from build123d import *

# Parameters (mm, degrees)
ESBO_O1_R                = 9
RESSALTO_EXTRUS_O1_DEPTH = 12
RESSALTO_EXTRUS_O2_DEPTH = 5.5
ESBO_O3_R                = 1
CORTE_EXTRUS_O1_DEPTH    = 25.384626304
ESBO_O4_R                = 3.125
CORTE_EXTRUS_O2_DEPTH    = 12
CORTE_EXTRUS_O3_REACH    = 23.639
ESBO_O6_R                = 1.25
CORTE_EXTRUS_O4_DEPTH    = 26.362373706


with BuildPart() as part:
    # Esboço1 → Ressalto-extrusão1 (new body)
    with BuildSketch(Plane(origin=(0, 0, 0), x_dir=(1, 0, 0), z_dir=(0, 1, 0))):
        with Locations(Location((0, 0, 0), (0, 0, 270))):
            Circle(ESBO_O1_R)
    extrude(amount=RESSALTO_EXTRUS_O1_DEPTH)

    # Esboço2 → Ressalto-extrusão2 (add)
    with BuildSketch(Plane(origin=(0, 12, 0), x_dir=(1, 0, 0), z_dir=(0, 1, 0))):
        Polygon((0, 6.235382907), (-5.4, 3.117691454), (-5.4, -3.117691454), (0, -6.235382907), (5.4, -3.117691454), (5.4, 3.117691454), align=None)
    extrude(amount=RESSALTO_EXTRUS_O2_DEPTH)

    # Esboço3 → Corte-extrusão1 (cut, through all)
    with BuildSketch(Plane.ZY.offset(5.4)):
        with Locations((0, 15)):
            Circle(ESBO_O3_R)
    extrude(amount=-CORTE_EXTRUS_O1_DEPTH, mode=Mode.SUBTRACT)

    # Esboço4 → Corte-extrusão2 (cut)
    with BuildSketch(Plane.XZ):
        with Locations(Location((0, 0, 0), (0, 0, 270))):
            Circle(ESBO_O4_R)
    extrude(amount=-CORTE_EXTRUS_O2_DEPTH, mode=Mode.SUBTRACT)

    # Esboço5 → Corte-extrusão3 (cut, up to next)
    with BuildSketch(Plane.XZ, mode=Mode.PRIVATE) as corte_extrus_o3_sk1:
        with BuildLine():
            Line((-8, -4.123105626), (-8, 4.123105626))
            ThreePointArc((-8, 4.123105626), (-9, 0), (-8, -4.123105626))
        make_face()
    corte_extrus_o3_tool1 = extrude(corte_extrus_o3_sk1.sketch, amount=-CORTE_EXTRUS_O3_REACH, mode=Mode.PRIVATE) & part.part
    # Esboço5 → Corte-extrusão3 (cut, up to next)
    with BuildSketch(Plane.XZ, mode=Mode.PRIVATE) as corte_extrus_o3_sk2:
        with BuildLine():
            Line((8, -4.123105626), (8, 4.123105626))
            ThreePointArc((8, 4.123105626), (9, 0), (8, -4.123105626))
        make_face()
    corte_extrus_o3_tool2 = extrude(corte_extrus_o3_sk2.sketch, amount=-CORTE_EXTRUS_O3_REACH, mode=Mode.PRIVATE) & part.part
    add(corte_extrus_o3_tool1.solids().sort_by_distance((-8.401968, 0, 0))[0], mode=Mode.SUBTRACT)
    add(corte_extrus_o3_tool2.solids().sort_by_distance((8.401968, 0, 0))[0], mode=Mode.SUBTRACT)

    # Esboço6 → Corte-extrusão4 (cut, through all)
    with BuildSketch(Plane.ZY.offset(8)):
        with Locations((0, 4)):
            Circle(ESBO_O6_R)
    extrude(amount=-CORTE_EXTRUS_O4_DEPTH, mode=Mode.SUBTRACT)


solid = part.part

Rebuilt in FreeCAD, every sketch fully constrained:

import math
import FreeCAD as App
import Part
import Sketcher

V = App.Vector
Q = App.Units.Quantity


def add_polygon(sketch, points):
    """Adds a closed chain of lines whose ends are joined by coincident constraints."""
    first, n = sketch.GeometryCount, len(points)
    for a, b in zip(points, points[1:] + points[:1]):
        sketch.addGeometry(Part.LineSegment(App.Vector(*a, 0), App.Vector(*b, 0)), False)
    for i in range(n):
        sketch.addConstraint(Sketcher.Constraint("Coincident", first + i, 2, first + (i + 1) % n, 1))

doc = App.newDocument("Part")
body = doc.addObject("PartDesign::Body", "Body")

# Sketch on XZ plane
sketch1 = body.newObject("Sketcher::SketchObject", "Sketch")
sketch1.AttachmentSupport = (doc.getObject("XZ_Plane"), [""])
sketch1.MapMode = "FlatFace"
sketch1.addGeometry(Part.Circle(V(0, 0, 0), V(0, 0, 1), 9), False)
sketch1.addConstraint([
    Sketcher.Constraint("Coincident", 0, 3, -1, 1),
    Sketcher.Constraint("Diameter", 0, Q("18 mm")),
])
pad1 = body.newObject("PartDesign::Pad", "Pad")
pad1.Profile = sketch1
pad1.Length = 12
pad1.Reversed = True

# Sketch on XZ plane
sketch2 = body.newObject("Sketcher::SketchObject", "Sketch001")
sketch2.AttachmentSupport = (doc.getObject("XZ_Plane"), [""])
sketch2.MapMode = "FlatFace"
sketch2.AttachmentOffset = App.Placement(V(0, 0, -12), App.Rotation())
add_polygon(sketch2, [(0, -6), (-5, -3), (-5, 3), (0, 6), (5, 3), (5, -3)])  # lines 0-5
sketch2.addConstraint([
    Sketcher.Constraint("Vertical", 1),
    Sketcher.Constraint("Vertical", 4),
    Sketcher.Constraint("Symmetric", 0, 2, 3, 2, -1, 1),
    Sketcher.Constraint("Symmetric", 2, 2, 5, 2, -1, 1),
    Sketcher.Constraint("PointOnObject", 2, 2, -2),
    Sketcher.Constraint("Parallel", 2, 5),
    Sketcher.Constraint("Horizontal", 1, 2, 3, 2),
    Sketcher.Constraint("Angle", 0, Q("150 deg")),
    Sketcher.Constraint("DistanceX", 0, 2, -1, 1, Q("5.4 mm")),
    Sketcher.Constraint("DistanceY", 1, 1, 1, 2, Q("6.235383 mm")),
])
pad2 = body.newObject("PartDesign::Pad", "Pad001")
pad2.Profile = sketch2
pad2.Length = 5.5
pad2.Reversed = True

# Sketch on YZ plane
sketch3 = body.newObject("Sketcher::SketchObject", "Sketch002")
sketch3.AttachmentSupport = (doc.getObject("YZ_Plane"), [""])
sketch3.MapMode = "FlatFace"
sketch3.AttachmentOffset = App.Placement(V(0, 0, -5.4), App.Rotation())
sketch3.addGeometry(Part.Circle(V(15, 0, 0), V(0, 0, 1), 1), False)
sketch3.addConstraint([
    Sketcher.Constraint("PointOnObject", 0, 3, -1),
    Sketcher.Constraint("Diameter", 0, Q("2 mm")),
    Sketcher.Constraint("DistanceX", -1, 1, 0, 3, Q("15 mm")),
])
pocket1 = body.newObject("PartDesign::Pocket", "Pocket")
pocket1.Profile = sketch3
pocket1.Type = "ThroughAll"
pocket1.Reversed = True

# Sketch on XZ plane
sketch4 = body.newObject("Sketcher::SketchObject", "Sketch003")
sketch4.AttachmentSupport = (doc.getObject("XZ_Plane"), [""])
sketch4.MapMode = "FlatFace"
sketch4.addGeometry(Part.Circle(V(0, 0, 0), V(0, 0, 1), 3.1), False)
sketch4.addConstraint([
    Sketcher.Constraint("Coincident", 0, 3, -1, 1),
    Sketcher.Constraint("Diameter", 0, Q("6.25 mm")),
])
pocket2 = body.newObject("PartDesign::Pocket", "Pocket001")
pocket2.Profile = sketch4
pocket2.Length = 12

# Sketch on XZ plane
sketch5 = body.newObject("Sketcher::SketchObject", "Sketch004")
sketch5.AttachmentSupport = (doc.getObject("XZ_Plane"), [""])
sketch5.MapMode = "FlatFace"
sketch5.addGeometry([
    Part.LineSegment(V(-8, -4, 0), V(-8, 4, 0)),
    Part.ArcOfCircle(Part.Circle(V(0, 0, 0), V(0, 0, 1), 9), math.radians(153), math.radians(207)),
], False)
sketch5.addConstraint([
    Sketcher.Constraint("Coincident", 0, 1, 1, 2),
    Sketcher.Constraint("Coincident", 1, 1, 0, 2),
    Sketcher.Constraint("Vertical", 0),
    Sketcher.Constraint("Coincident", 1, 3, -1, 1),
    Sketcher.Constraint("Radius", 1, Q("9 mm")),
    Sketcher.Constraint("DistanceX", 0, 1, -1, 1, Q("8 mm")),
])
pocket3 = body.newObject("PartDesign::Pocket", "Pocket002")
pocket3.Profile = sketch5
pocket3.Type = "UpToFirst"

# Sketch on XZ plane
sketch6 = body.newObject("Sketcher::SketchObject", "Sketch005")
sketch6.AttachmentSupport = (doc.getObject("XZ_Plane"), [""])
sketch6.MapMode = "FlatFace"
sketch6.addGeometry([
    Part.LineSegment(V(8, 4, 0), V(8, -4, 0)),
    Part.ArcOfCircle(Part.Circle(V(0, 0, 0), V(0, 0, 1), 9), math.radians(-27), math.radians(27)),
], False)
sketch6.addConstraint([
    Sketcher.Constraint("Coincident", 0, 1, 1, 2),
    Sketcher.Constraint("Coincident", 1, 1, 0, 2),
    Sketcher.Constraint("Vertical", 0),
    Sketcher.Constraint("Coincident", 1, 3, -1, 1),
    Sketcher.Constraint("Radius", 1, Q("9 mm")),
    Sketcher.Constraint("DistanceX", -1, 1, 0, 1, Q("8 mm")),
])
pocket4 = body.newObject("PartDesign::Pocket", "Pocket003")
pocket4.Profile = sketch6
pocket4.Type = "UpToFirst"

# Sketch on YZ plane
sketch7 = body.newObject("Sketcher::SketchObject", "Sketch006")
sketch7.AttachmentSupport = (doc.getObject("YZ_Plane"), [""])
sketch7.MapMode = "FlatFace"
sketch7.AttachmentOffset = App.Placement(V(0, 0, -8), App.Rotation())
sketch7.addGeometry(Part.Circle(V(4, 0, 0), V(0, 0, 1), 1.2), False)
sketch7.addConstraint([
    Sketcher.Constraint("PointOnObject", 0, 3, -1),
    Sketcher.Constraint("Diameter", 0, Q("2.5 mm")),
    Sketcher.Constraint("DistanceX", -1, 1, 0, 3, Q("4 mm")),
])
pocket5 = body.newObject("PartDesign::Pocket", "Pocket004")
pocket5.Profile = sketch7
pocket5.Type = "ThroughAll"
pocket5.Reversed = True

doc.recompute()
